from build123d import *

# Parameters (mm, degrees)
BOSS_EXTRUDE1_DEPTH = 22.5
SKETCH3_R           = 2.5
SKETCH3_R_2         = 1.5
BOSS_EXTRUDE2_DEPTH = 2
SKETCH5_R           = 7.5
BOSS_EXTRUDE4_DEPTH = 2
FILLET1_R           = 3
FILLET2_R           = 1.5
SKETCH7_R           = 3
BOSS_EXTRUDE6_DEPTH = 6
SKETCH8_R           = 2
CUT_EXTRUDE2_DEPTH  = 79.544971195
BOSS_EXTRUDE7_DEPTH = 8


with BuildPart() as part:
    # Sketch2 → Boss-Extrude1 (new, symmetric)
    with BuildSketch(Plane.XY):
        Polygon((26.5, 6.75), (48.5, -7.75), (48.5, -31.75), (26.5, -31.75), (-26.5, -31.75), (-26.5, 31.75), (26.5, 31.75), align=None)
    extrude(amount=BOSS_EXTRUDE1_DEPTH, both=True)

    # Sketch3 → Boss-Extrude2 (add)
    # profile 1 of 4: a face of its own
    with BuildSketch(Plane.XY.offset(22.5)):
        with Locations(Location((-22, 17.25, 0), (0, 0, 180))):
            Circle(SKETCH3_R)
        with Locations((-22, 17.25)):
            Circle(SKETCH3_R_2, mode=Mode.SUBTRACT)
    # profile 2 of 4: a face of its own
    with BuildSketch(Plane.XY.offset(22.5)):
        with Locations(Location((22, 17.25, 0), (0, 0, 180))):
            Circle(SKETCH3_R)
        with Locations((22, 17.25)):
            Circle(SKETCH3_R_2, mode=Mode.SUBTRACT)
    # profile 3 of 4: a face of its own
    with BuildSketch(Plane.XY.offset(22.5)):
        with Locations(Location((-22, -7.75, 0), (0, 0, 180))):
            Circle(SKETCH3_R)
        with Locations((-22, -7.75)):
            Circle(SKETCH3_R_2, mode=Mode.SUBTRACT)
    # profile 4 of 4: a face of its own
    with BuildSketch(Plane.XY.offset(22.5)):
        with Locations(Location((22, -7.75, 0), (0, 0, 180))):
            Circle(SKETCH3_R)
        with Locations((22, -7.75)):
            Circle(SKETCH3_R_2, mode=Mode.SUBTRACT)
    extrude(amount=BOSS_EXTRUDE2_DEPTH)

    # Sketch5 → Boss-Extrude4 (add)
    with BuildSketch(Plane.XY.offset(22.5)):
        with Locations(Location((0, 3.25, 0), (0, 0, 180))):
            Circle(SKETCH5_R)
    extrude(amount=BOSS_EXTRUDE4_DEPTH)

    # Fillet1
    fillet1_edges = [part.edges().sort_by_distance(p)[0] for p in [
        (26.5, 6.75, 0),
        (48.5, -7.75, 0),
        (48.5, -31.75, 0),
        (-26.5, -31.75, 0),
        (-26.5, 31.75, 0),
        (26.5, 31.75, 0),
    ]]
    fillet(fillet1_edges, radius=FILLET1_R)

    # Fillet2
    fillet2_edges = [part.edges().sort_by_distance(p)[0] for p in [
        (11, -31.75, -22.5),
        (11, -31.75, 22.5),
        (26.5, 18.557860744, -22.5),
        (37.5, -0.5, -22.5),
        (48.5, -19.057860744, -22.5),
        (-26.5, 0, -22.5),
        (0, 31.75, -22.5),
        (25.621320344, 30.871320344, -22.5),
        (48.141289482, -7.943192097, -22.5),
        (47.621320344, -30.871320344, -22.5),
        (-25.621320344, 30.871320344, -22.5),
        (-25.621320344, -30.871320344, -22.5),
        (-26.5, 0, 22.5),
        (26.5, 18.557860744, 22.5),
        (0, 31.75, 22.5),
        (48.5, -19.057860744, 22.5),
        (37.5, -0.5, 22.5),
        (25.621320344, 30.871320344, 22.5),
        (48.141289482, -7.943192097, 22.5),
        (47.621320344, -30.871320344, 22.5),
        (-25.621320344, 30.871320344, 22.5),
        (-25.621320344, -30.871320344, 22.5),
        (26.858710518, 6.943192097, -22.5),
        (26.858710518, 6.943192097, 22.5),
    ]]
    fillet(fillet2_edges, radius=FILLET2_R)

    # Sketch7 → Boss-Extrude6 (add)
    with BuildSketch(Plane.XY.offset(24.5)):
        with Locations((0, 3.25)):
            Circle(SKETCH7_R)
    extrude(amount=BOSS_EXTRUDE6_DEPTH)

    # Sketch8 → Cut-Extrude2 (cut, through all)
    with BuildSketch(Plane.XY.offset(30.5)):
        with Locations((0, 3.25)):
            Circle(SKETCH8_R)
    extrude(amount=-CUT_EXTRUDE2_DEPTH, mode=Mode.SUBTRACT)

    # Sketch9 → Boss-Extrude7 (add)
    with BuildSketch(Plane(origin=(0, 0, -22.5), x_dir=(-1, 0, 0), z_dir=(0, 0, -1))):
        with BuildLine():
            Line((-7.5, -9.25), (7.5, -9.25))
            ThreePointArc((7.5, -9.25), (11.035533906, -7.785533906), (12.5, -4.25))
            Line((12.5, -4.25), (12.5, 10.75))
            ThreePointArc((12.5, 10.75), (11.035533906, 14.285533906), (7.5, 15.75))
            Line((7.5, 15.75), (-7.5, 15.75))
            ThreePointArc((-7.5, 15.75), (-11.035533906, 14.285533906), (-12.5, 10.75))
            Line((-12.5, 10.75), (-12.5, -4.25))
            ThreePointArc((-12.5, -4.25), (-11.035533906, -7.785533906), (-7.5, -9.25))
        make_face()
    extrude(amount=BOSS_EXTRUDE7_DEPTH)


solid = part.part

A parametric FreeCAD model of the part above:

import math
import FreeCAD as App
import Part
import Sketcher
Q = App.Units.Quantity


def edges_at(feature, points):
    """Names of the edges that pass closest to the given points."""
    edges = feature.Shape.Edges
    near = lambda p: min(range(len(edges)), key=lambda i: edges[i].distToShape(Part.Vertex(*p))[0])
    return sorted({f"Edge{near(p) + 1}" for p in points})

doc = App.newDocument("Part")
body = doc.addObject("PartDesign::Body", "Body")

# Sketch on XY plane
sketch1 = body.newObject("Sketcher::SketchObject", "Sketch")
sketch1.AttachmentSupport = (doc.getObject("XY_Plane"), [""])
sketch1.MapMode = "FlatFace"
sketch1.addGeometry([
    Part.LineSegment(App.Vector(48, -8, 0), App.Vector(26, 7, 0)),  # 0
    Part.LineSegment(App.Vector(26, 7, 0), App.Vector(26, 32, 0)),  # 1
    Part.LineSegment(App.Vector(26, 32, 0), App.Vector(-26, 32, 0)),  # 2
    Part.LineSegment(App.Vector(-26, 32, 0), App.Vector(-26, -32, 0)),  # 3
    Part.LineSegment(App.Vector(-26, -32, 0), App.Vector(48, -32, 0)),  # 4
    Part.LineSegment(App.Vector(48, -32, 0), App.Vector(48, -8, 0)),  # 5
], False)
sketch1.addConstraint([
    Sketcher.Constraint("Coincident", 0, 2, 1, 1),
    Sketcher.Constraint("Coincident", 1, 2, 2, 1),
    Sketcher.Constraint("Coincident", 2, 2, 3, 1),
    Sketcher.Constraint("Coincident", 3, 2, 4, 1),
    Sketcher.Constraint("Coincident", 4, 2, 5, 1),
    Sketcher.Constraint("Coincident", 5, 2, 0, 1),
    Sketcher.Constraint("Vertical", 1),
    Sketcher.Constraint("Horizontal", 2),
    Sketcher.Constraint("Vertical", 3),
    Sketcher.Constraint("Horizontal", 4),
    Sketcher.Constraint("Vertical", 5),
    Sketcher.Constraint("Symmetric", 1, 2, 3, 2, -1, 1),
    Sketcher.Constraint("DistanceX", 2, 2, 2, 1, Q("53 mm")),
    Sketcher.Constraint("DistanceX", 4, 1, 4, 2, Q("75 mm")),
    Sketcher.Constraint("DistanceY", 1, 1, 1, 2, Q("25 mm")),
    Sketcher.Constraint("DistanceY", 5, 1, 5, 2, Q("24 mm")),
    Sketcher.Constraint("DistanceY", 3, 2, 3, 1, Q("63.5 mm")),
])
pad1 = body.newObject("PartDesign::Pad", "Pad")
pad1.Profile = sketch1
pad1.Length = 45
pad1.Midplane = True

# Sketch on XY plane
sketch2 = body.newObject("Sketcher::SketchObject", "Sketch001")
sketch2.AttachmentSupport = (doc.getObject("XY_Plane"), [""])
sketch2.MapMode = "FlatFace"
sketch2.AttachmentOffset = App.Placement(App.Vector(0, 0, 22.5), App.Rotation())
sketch2.addGeometry([
    Part.Circle(App.Vector(-22, 17.2, 0), App.Vector(0, 0, 1), 2.5),  # 0
    Part.Circle(App.Vector(-22, 17.2, 0), App.Vector(0, 0, 1), 1.5),  # 1
    Part.Circle(App.Vector(22, 17.2, 0), App.Vector(0, 0, 1), 2.5),  # 2
    Part.Circle(App.Vector(22, 17.2, 0), App.Vector(0, 0, 1), 1.5),  # 3
    Part.Circle(App.Vector(-22, -7.8, 0), App.Vector(0, 0, 1), 2.5),  # 4
    Part.Circle(App.Vector(-22, -7.8, 0), App.Vector(0, 0, 1), 1.5),  # 5
    Part.Circle(App.Vector(22, -7.8, 0), App.Vector(0, 0, 1), 2.5),  # 6
    Part.Circle(App.Vector(22, -7.8, 0), App.Vector(0, 0, 1), 1.5),  # 7
], False)
sketch2.addConstraint([
    Sketcher.Constraint("Coincident", 1, 3, 0, 3),
    Sketcher.Constraint("Coincident", 3, 3, 2, 3),
    Sketcher.Constraint("Coincident", 5, 3, 4, 3),
    Sketcher.Constraint("Coincident", 7, 3, 6, 3),
    Sketcher.Constraint("Equal", 0, 2),
    Sketcher.Constraint("Equal", 1, 3),
    Sketcher.Constraint("Equal", 2, 4),
    Sketcher.Constraint("Equal", 3, 5),
    Sketcher.Constraint("Equal", 4, 6),
    Sketcher.Constraint("Equal", 5, 7),
    Sketcher.Constraint("Symmetric", 0, 3, 2, 3, -2),
    Sketcher.Constraint("Symmetric", 4, 3, 6, 3, -2),
    Sketcher.Constraint("Vertical", 1, 3, 4, 3),
    Sketcher.Constraint("Diameter", 0, Q("5 mm")),
    Sketcher.Constraint("Diameter", 1, Q("3 mm")),
    Sketcher.Constraint("DistanceX", 0, 3, -1, 1, Q("22 mm")),
    Sketcher.Constraint("DistanceY", 4, 3, 0, 3, Q("25 mm")),
    Sketcher.Constraint("DistanceY", -1, 1, 0, 3, Q("17.25 mm")),
])
pad2 = body.newObject("PartDesign::Pad", "Pad001")
pad2.Profile = sketch2
pad2.Length = 2

# Sketch on XY plane
sketch3 = body.newObject("Sketcher::SketchObject", "Sketch002")
sketch3.AttachmentSupport = (doc.getObject("XY_Plane"), [""])
sketch3.MapMode = "FlatFace"
sketch3.AttachmentOffset = App.Placement(App.Vector(0, 0, 22.5), App.Rotation())
sketch3.addGeometry(Part.Circle(App.Vector(0, 3, 0), App.Vector(0, 0, 1), 8), False)
sketch3.addConstraint([
    Sketcher.Constraint("PointOnObject", 0, 3, -2),
    Sketcher.Constraint("Diameter", 0, Q("15 mm")),
    Sketcher.Constraint("DistanceY", -1, 1, 0, 3, Q("3.25 mm")),
])
pad3 = body.newObject("PartDesign::Pad", "Pad002")
pad3.Profile = sketch3
pad3.Length = 2
doc.recompute()

fillet = body.newObject("PartDesign::Fillet", "Fillet")
fillet.Base = (pad3, edges_at(pad3, [
    (26.5, 6.75, 0),
    (48.5, -7.75, 0),
    (48.5, -31.75, 0),
    (-26.5, -31.75, 0),
    (-26.5, 31.75, 0),
    (26.5, 31.75, 0),
]))
fillet.Radius = 3
doc.recompute()

fillet2 = body.newObject("PartDesign::Fillet", "Fillet001")
fillet2.Base = (fillet, edges_at(fillet, [
    (11, -31.75, -22.5),
    (11, -31.75, 22.5),
    (26.5, 18.558, -22.5),
    (37.5, -0.5, -22.5),
    (48.5, -19.058, -22.5),
    (-26.5, 0, -22.5),
    (0, 31.75, -22.5),
    (25.621, 30.871, -22.5),
    (48.141, -7.943, -22.5),
    (47.621, -30.871, -22.5),
    (-25.621, 30.871, -22.5),
    (-25.621, -30.871, -22.5),
    (-26.5, 0, 22.5),
    (26.5, 18.558, 22.5),
    (0, 31.75, 22.5),
    (48.5, -19.058, 22.5),
    (37.5, -0.5, 22.5),
    (25.621, 30.871, 22.5),
    (48.141, -7.943, 22.5),
    (47.621, -30.871, 22.5),
    (-25.621, 30.871, 22.5),
    (-25.621, -30.871, 22.5),
    (26.859, 6.943, -22.5),
    (26.859, 6.943, 22.5),
]))
fillet2.Radius = 1.5

# Sketch on XY plane
sketch4 = body.newObject("Sketcher::SketchObject", "Sketch003")
sketch4.AttachmentSupport = (doc.getObject("XY_Plane"), [""])
sketch4.MapMode = "FlatFace"
sketch4.AttachmentOffset = App.Placement(App.Vector(0, 0, 24.5), App.Rotation())
sketch4.addGeometry(Part.Circle(App.Vector(0, 3.2, 0), App.Vector(0, 0, 1), 3), False)
sketch4.addConstraint([
    Sketcher.Constraint("PointOnObject", 0, 3, -2),
    Sketcher.Constraint("Diameter", 0, Q("6 mm")),
    Sketcher.Constraint("DistanceY", -1, 1, 0, 3, Q("3.25 mm")),
])
pad4 = body.newObject("PartDesign::Pad", "Pad003")
pad4.Profile = sketch4
pad4.Length = 6

# Sketch on XY plane
sketch5 = body.newObject("Sketcher::SketchObject", "Sketch004")
sketch5.AttachmentSupport = (doc.getObject("XY_Plane"), [""])
sketch5.MapMode = "FlatFace"
sketch5.AttachmentOffset = App.Placement(App.Vector(0, 0, 30.5), App.Rotation())
sketch5.addGeometry(Part.Circle(App.Vector(0, 3.2, 0), App.Vector(0, 0, 1), 2), False)
sketch5.addConstraint([
    Sketcher.Constraint("PointOnObject", 0, 3, -2),
    Sketcher.Constraint("Diameter", 0, Q("4 mm")),
    Sketcher.Constraint("DistanceY", -1, 1, 0, 3, Q("3.25 mm")),
])
pocket1 = body.newObject("PartDesign::Pocket", "Pocket")
pocket1.Profile = sketch5
pocket1.Type = "ThroughAll"

# Sketch on XY plane
sketch6 = body.newObject("Sketcher::SketchObject", "Sketch005")
sketch6.AttachmentSupport = (doc.getObject("XY_Plane"), [""])
sketch6.MapMode = "FlatFace"
sketch6.AttachmentOffset = App.Placement(App.Vector(0, 0, -22.5), App.Rotation())
sketch6.addGeometry([
    Part.LineSegment(App.Vector(8, -9, 0), App.Vector(-8, -9, 0)),  # 0
    Part.ArcOfCircle(Part.Circle(App.Vector(-8, -4, 0), App.Vector(0, 0, 1), 5), math.radians(180), math.radians(270)),  # 1
    Part.LineSegment(App.Vector(-12, -4, 0), App.Vector(-12, 11, 0)),  # 2
    Part.ArcOfCircle(Part.Circle(App.Vector(-8, 11, 0), App.Vector(0, 0, 1), 5), math.radians(90), math.radians(180)),  # 3
    Part.LineSegment(App.Vector(-8, 16, 0), App.Vector(8, 16, 0)),  # 4
    Part.ArcOfCircle(Part.Circle(App.Vector(8, 11, 0), App.Vector(0, 0, 1), 5), math.radians(0), math.radians(90)),  # 5
    Part.LineSegment(App.Vector(12, 11, 0), App.Vector(12, -4, 0)),  # 6
    Part.ArcOfCircle(Part.Circle(App.Vector(8, -4, 0), App.Vector(0, 0, 1), 5), math.radians(-90), math.radians(0)),  # 7
], False)
sketch6.addConstraint([
    Sketcher.Constraint("Tangent", 0, 2, 1, 2),
    Sketcher.Constraint("Tangent", 1, 1, 2, 1),
    Sketcher.Constraint("Tangent", 2, 2, 3, 2),
    Sketcher.Constraint("Tangent", 3, 1, 4, 1),
    Sketcher.Constraint("Tangent", 4, 2, 5, 2),
    Sketcher.Constraint("Tangent", 5, 1, 6, 1),
    Sketcher.Constraint("Tangent", 6, 2, 7, 2),
    Sketcher.Constraint("Tangent", 7, 1, 0, 1),
    Sketcher.Constraint("Horizontal", 0),
    Sketcher.Constraint("Vertical", 2),
    Sketcher.Constraint("Horizontal", 4),
    Sketcher.Constraint("Vertical", 6),
    Sketcher.Constraint("Equal", 1, 3),
    Sketcher.Constraint("Equal", 3, 5),
    Sketcher.Constraint("Equal", 5, 7),
    Sketcher.Constraint("Equal", 4, 2),
    Sketcher.Constraint("Radius", 1, Q("5 mm")),
    Sketcher.Constraint("DistanceX", 0, 2, 0, 1, Q("15 mm")),
    Sketcher.Constraint("DistanceX", 1, 3, -1, 1, Q("7.5 mm")),
    Sketcher.Constraint("DistanceY", 1, 3, -1, 1, Q("4.25 mm")),
])
pad5 = body.newObject("PartDesign::Pad", "Pad004")
pad5.Profile = sketch6
pad5.Length = 8
pad5.Reversed = True

doc.recompute()
